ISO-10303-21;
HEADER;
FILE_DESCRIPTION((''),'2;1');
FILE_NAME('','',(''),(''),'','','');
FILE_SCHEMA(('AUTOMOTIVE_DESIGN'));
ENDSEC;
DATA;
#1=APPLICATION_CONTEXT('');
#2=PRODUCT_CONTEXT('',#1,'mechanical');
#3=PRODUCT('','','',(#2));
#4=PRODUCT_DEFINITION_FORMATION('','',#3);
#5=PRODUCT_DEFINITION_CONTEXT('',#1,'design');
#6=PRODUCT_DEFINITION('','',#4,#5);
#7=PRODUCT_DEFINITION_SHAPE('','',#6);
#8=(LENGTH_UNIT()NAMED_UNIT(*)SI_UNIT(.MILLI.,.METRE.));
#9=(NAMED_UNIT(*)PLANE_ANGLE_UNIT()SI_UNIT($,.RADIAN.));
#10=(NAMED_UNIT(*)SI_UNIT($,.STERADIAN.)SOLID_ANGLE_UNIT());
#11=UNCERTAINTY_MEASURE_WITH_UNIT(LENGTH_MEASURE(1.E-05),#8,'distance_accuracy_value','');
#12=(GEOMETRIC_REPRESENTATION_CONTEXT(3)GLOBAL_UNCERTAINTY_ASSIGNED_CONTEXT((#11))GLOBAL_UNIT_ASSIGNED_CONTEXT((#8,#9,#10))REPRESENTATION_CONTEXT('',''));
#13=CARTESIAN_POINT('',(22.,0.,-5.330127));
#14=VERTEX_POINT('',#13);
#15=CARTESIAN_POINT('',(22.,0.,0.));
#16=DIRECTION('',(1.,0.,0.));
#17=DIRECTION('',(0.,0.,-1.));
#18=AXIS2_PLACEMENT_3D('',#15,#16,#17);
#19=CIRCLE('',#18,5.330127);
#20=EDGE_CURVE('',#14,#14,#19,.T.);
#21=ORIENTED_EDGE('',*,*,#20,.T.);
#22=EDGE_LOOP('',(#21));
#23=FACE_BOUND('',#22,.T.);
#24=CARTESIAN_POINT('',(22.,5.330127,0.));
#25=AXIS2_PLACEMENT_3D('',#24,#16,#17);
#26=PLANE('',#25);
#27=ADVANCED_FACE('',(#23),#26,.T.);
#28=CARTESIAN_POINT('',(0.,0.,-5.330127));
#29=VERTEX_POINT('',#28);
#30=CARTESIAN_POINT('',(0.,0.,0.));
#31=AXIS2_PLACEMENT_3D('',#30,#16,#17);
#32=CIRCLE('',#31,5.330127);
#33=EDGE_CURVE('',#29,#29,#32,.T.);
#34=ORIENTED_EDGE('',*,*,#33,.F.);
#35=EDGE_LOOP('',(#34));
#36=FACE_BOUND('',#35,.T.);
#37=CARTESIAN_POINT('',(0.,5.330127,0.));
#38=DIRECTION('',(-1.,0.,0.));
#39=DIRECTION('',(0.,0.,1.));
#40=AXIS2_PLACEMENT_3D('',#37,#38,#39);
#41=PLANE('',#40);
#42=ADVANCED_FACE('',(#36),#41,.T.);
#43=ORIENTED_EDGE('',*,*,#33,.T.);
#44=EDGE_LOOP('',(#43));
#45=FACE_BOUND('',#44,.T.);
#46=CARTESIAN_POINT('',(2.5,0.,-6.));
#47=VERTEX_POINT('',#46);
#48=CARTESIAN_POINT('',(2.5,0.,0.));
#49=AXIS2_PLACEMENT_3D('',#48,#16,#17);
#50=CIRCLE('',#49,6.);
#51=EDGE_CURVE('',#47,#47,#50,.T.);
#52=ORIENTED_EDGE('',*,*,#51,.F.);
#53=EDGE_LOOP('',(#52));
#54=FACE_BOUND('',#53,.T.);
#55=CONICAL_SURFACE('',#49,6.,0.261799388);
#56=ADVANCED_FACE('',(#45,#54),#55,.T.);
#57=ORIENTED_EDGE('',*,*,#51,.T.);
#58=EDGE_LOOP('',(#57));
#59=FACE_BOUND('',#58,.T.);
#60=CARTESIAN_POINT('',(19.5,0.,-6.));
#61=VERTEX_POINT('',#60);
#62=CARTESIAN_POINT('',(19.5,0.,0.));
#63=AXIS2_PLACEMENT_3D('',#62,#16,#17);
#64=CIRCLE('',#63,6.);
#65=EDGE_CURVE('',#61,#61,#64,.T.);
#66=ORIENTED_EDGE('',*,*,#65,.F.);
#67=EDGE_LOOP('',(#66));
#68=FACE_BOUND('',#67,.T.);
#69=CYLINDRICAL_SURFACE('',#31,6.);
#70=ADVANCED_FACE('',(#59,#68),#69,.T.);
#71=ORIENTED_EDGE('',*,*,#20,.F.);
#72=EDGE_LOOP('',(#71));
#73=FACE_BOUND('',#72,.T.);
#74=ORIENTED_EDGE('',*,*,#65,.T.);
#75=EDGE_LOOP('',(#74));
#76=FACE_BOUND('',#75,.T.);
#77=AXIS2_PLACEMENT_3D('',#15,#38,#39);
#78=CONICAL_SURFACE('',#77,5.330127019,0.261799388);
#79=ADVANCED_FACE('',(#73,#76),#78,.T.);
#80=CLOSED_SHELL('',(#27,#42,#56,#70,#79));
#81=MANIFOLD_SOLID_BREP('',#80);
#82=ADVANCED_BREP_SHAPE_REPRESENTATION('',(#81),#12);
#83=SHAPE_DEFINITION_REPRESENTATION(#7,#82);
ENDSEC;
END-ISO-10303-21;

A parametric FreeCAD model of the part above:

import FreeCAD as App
import Part
import Sketcher
Q = App.Units.Quantity

doc = App.newDocument("Part")
body = doc.addObject("PartDesign::Body", "Body")

# Sketch on XY plane
sketch1 = body.newObject("Sketcher::SketchObject", "Sketch")
sketch1.AttachmentSupport = (doc.getObject("XY_Plane"), [""])
sketch1.MapMode = "FlatFace"
sketch1.addGeometry([
    Part.LineSegment(App.Vector(0, 0, 0), App.Vector(22, 0, 0)),  # 0
    Part.LineSegment(App.Vector(22, 0, 0), App.Vector(22, 5.3, 0)),  # 1
    Part.LineSegment(App.Vector(22, 5.3, 0), App.Vector(19.5, 6, 0)),  # 2
    Part.LineSegment(App.Vector(19.5, 6, 0), App.Vector(2.5, 6, 0)),  # 3
    Part.LineSegment(App.Vector(2.5, 6, 0), App.Vector(0, 5.3, 0)),  # 4
    Part.LineSegment(App.Vector(0, 5.3, 0), App.Vector(0, 0, 0)),  # 5
], False)
sketch1.addConstraint([
    Sketcher.Constraint("Coincident", 0, 2, 1, 1),
    Sketcher.Constraint("Coincident", 1, 2, 2, 1),
    Sketcher.Constraint("Coincident", 2, 2, 3, 1),
    Sketcher.Constraint("Coincident", 3, 2, 4, 1),
    Sketcher.Constraint("Coincident", 4, 2, 5, 1),
    Sketcher.Constraint("Coincident", 5, 2, 0, 1),
    Sketcher.Constraint("Horizontal", 0),
    Sketcher.Constraint("Vertical", 1),
    Sketcher.Constraint("Horizontal", 3),
    Sketcher.Constraint("Vertical", 5),
    Sketcher.Constraint("Coincident", 5, 2, -1, 1),
    Sketcher.Constraint("Horizontal", 1, 2, 4, 2),
    Sketcher.Constraint("Equal", 2, 4),
    Sketcher.Constraint("DistanceX", 0, 1, 0, 2, Q("22 mm")),
    Sketcher.Constraint("DistanceX", 3, 2, 3, 1, Q("17 mm")),
    Sketcher.Constraint("Angle", 2, Q("165 deg")),
    Sketcher.Constraint("DistanceY", -1, 1, 2, 2, Q("6 mm")),
])
revolution = body.newObject("PartDesign::Revolution", "Revolution")
revolution.Profile = sketch1
revolution.ReferenceAxis = (sketch1, ["H_Axis"])
revolution.Angle = 360

doc.recompute()
